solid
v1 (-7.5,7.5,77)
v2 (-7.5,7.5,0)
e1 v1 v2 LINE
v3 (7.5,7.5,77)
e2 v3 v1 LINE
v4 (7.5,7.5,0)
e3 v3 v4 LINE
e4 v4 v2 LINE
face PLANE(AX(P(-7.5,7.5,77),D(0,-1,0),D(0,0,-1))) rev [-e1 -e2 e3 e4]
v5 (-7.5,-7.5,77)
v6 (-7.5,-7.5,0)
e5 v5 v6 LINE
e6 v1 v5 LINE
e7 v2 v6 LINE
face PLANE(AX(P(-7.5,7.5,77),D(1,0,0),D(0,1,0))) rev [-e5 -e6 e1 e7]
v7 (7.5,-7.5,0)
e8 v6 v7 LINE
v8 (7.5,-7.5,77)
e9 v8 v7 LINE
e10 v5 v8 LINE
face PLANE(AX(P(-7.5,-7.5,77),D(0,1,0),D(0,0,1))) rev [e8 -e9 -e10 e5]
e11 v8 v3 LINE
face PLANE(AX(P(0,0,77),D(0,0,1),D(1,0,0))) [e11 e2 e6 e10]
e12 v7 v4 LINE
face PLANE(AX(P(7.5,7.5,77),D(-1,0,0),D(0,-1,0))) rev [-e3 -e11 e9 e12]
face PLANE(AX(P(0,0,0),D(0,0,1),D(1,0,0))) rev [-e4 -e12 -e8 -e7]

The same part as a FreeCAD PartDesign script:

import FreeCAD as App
import Part
import Sketcher
from FreeCAD import Vector
Q = App.Units.Quantity

doc = App.newDocument("Part")
body = doc.addObject("PartDesign::Body", "Body")

sketch1 = doc.addObject("Sketcher::SketchObject", "Sketch")
body.addObject(sketch1)
sketch1.AttachmentSupport = (doc.XY_Plane, [""])
sketch1.MapMode = "FlatFace"
sketch1.addGeometry([
    Part.LineSegment(Vector(-8, 8, 0), Vector(-8, -8, 0)),
    Part.LineSegment(Vector(-8, -8, 0), Vector(8, -8, 0)),
    Part.LineSegment(Vector(8, -8, 0), Vector(8, 8, 0)),
    Part.LineSegment(Vector(8, 8, 0), Vector(-8, 8, 0)),
], False)
sketch1.addConstraint([
    Sketcher.Constraint("Coincident", 0, 2, 1, 1),
    Sketcher.Constraint("Coincident", 1, 2, 2, 1),
    Sketcher.Constraint("Coincident", 2, 2, 3, 1),
    Sketcher.Constraint("Coincident", 3, 2, 0, 1),
    Sketcher.Constraint("Vertical", 0),
    Sketcher.Constraint("Horizontal", 1),
    Sketcher.Constraint("Vertical", 2),
    Sketcher.Constraint("Horizontal", 3),
    Sketcher.Constraint("Symmetric", 0, 2, 2, 2, -1, 1),
    Sketcher.Constraint("Equal", 3, 0),
    Sketcher.Constraint("DistanceX", 1, 1, 1, 2, Q("15 mm")),
])
pad1 = doc.addObject("PartDesign::Pad", "Pad")
body.addObject(pad1)
pad1.Profile = sketch1
pad1.Length = 77

doc.recompute()
